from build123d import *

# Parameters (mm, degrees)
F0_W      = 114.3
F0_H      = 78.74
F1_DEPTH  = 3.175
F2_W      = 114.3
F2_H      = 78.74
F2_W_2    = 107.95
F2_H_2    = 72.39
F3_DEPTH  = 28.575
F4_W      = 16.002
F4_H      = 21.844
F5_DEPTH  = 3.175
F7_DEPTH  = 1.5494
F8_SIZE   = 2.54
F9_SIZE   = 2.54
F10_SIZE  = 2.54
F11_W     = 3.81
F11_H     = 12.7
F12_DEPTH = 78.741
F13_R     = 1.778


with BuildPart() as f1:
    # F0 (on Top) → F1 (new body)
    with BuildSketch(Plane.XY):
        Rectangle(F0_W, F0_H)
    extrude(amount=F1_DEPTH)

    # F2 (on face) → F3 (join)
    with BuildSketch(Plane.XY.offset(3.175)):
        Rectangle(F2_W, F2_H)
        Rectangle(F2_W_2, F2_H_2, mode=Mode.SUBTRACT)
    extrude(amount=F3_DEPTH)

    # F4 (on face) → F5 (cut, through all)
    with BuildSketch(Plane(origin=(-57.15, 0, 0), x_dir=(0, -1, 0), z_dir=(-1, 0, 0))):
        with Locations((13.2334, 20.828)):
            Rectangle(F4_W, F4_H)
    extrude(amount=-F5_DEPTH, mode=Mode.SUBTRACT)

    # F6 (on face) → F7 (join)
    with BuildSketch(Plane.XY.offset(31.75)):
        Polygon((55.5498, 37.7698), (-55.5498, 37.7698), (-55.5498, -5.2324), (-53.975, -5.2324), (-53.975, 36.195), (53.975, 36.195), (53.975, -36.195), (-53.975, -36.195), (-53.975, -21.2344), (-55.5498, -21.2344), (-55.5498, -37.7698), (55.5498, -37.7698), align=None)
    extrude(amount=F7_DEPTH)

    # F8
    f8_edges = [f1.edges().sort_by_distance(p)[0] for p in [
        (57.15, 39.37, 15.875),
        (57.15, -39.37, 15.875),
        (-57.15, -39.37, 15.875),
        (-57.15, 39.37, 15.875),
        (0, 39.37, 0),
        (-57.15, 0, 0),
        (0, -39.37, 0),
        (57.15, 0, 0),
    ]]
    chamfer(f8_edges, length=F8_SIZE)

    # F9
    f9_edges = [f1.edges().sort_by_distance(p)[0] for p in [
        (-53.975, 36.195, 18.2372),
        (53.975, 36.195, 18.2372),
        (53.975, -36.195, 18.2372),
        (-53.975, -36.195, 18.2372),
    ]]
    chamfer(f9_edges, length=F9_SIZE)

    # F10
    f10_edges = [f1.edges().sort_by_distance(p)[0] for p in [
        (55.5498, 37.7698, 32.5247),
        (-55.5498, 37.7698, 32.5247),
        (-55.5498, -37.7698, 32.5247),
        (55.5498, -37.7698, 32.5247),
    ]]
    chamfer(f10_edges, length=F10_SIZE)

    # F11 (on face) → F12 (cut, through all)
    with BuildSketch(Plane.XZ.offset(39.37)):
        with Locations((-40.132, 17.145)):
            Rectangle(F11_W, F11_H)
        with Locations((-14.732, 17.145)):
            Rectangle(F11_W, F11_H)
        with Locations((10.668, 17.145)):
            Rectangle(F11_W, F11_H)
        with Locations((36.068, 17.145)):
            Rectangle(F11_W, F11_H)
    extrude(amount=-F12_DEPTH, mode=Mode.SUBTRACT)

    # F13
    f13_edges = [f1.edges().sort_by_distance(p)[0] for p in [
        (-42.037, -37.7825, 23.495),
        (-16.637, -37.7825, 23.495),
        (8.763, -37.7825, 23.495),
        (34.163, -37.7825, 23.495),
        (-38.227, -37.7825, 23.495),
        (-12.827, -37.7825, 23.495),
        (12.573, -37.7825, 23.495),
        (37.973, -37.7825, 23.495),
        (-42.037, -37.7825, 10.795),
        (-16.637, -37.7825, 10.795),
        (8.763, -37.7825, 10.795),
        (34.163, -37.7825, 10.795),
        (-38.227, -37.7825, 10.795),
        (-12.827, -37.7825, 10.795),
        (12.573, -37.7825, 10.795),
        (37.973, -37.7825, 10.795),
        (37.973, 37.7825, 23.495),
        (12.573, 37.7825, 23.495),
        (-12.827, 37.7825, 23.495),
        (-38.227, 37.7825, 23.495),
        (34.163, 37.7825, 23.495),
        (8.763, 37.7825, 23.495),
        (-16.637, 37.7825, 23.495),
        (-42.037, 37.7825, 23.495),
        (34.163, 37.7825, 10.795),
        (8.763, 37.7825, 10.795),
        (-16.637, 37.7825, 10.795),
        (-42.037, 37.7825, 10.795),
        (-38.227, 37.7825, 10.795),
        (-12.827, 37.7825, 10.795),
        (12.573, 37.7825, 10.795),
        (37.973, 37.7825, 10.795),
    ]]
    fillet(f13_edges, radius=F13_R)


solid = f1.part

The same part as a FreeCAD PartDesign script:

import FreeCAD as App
import Part
import Sketcher

V = App.Vector
Q = App.Units.Quantity


def edges_at(feature, points):
    """Names of the edges that pass closest to the given points."""
    edges = feature.Shape.Edges
    near = lambda p: min(range(len(edges)), key=lambda i: edges[i].distToShape(Part.Vertex(*p))[0])
    return sorted({f"Edge{near(p) + 1}" for p in points})


def add_polygon(sketch, points):
    """Adds a closed chain of lines whose ends are joined by coincident constraints."""
    first, n = sketch.GeometryCount, len(points)
    for a, b in zip(points, points[1:] + points[:1]):
        sketch.addGeometry(Part.LineSegment(App.Vector(*a, 0), App.Vector(*b, 0)), False)
    for i in range(n):
        sketch.addConstraint(Sketcher.Constraint("Coincident", first + i, 2, first + (i + 1) % n, 1))

doc = App.newDocument("Part")
params = doc.addObject("Spreadsheet::Sheet", "Params")
for row, (alias, value) in enumerate([
    ("sketch1_width", "4.5 in"),
    ("sketch1_height", "3.1 in"),
    ("pad1_length", "0.125 in"),
    ("sketch2_width", "4.5 in"),
    ("sketch2_height", "3.1 in"),
    ("sketch2_width2", "4.25 in"),
    ("sketch2_height2", "2.85 in"),
    ("pad2_length", "1.125 in"),
    ("sketch3_width", "0.63 in"),
    ("sketch3_height", "0.86 in"),
    ("pocket1_length", "0.125 in"),
    ("sketch4_width", "4.25 in"),
    ("sketch4_height", "2.85 in"),
    ("sketch4_width2", "4.374 in"),
    ("sketch4_height2", "1.693 in"),
    ("sketch4_height3", "1.631 in"),
    ("pad3_length", "0.061 in"),
    ("chamfer_size", "0.1 in"),
    ("chamfer2_size", "0.1 in"),
    ("chamfer3_size", "0.1 in"),
    ("sketch5_height", "0.5 in"),
    ("sketch5_width", "0.15 in"),
    ("fillet_radius", "0.07 in"),
], start=1):
    params.set(f"A{row}", alias)
    params.set(f"B{row}", "=" + value)
    params.setAlias(f"B{row}", alias)

body = doc.addObject("PartDesign::Body", "Body")

sketch1 = body.newObject("Sketcher::SketchObject", "Sketch")
sketch1.AttachmentSupport = (doc.getObject("XY_Plane"), [""])
sketch1.MapMode = "FlatFace"
add_polygon(sketch1, [(-57, 39), (-57, -39), (57, -39), (57, 39)])
sketch1.addConstraint([
    Sketcher.Constraint("Vertical", 0),
    Sketcher.Constraint("Horizontal", 1),
    Sketcher.Constraint("Vertical", 2),
    Sketcher.Constraint("Horizontal", 3),
    Sketcher.Constraint("Symmetric", 0, 2, 2, 2, -1, 1),
    Sketcher.Constraint("DistanceX", 1, 1, 1, 2, Q("4.5 in")),
    Sketcher.Constraint("DistanceY", 0, 2, 0, 1, Q("3.1 in")),
])
sketch1.setExpression("Constraints[9]", "Params.sketch1_width")
sketch1.setExpression("Constraints[10]", "Params.sketch1_height")
pad1 = body.newObject("PartDesign::Pad", "Pad")
pad1.Profile = sketch1
pad1.setExpression("Length", "Params.pad1_length")

sketch2 = body.newObject("Sketcher::SketchObject", "Sketch001")
sketch2.AttachmentSupport = (doc.getObject("XY_Plane"), [""])
sketch2.MapMode = "FlatFace"
sketch2.AttachmentOffset = App.Placement(V(0, 0, 0.125 * 25.4), App.Rotation())
add_polygon(sketch2, [(-57, 39), (-57, -39), (57, -39), (57, 39)])
add_polygon(sketch2, [(54, -36), (-54, -36), (-54, 36), (54, 36)])
sketch2.addConstraint([
    Sketcher.Constraint("Vertical", 0),
    Sketcher.Constraint("Horizontal", 1),
    Sketcher.Constraint("Vertical", 2),
    Sketcher.Constraint("Horizontal", 3),
    Sketcher.Constraint("Horizontal", 4),
    Sketcher.Constraint("Vertical", 5),
    Sketcher.Constraint("Horizontal", 6),
    Sketcher.Constraint("Vertical", 7),
    Sketcher.Constraint("Symmetric", 0, 2, 2, 2, -1, 1),
    Sketcher.Constraint("Symmetric", 4, 2, 6, 2, -1, 1),
    Sketcher.Constraint("DistanceX", 1, 1, 1, 2, Q("4.5 in")),
    Sketcher.Constraint("DistanceY", 0, 2, 0, 1, Q("3.1 in")),
    Sketcher.Constraint("DistanceX", 4, 2, 4, 1, Q("4.25 in")),
    Sketcher.Constraint("DistanceY", 5, 1, 5, 2, Q("2.85 in")),
])
sketch2.setExpression("Constraints[18]", "Params.sketch2_width")
sketch2.setExpression("Constraints[19]", "Params.sketch2_height")
sketch2.setExpression("Constraints[20]", "Params.sketch2_width2")
sketch2.setExpression("Constraints[21]", "Params.sketch2_height2")
pad2 = body.newObject("PartDesign::Pad", "Pad001")
pad2.Profile = sketch2
pad2.setExpression("Length", "Params.pad2_length")

sketch3 = body.newObject("Sketcher::SketchObject", "Sketch002")
sketch3.AttachmentSupport = (doc.getObject("YZ_Plane"), [""])
sketch3.MapMode = "FlatFace"
sketch3.AttachmentOffset = App.Placement(V(0, 0, -2.25 * 25.4), App.Rotation())
add_polygon(sketch3, [(-5, 32), (-5, 10), (-21, 10), (-21, 32)])
sketch3.addConstraint([
    Sketcher.Constraint("Vertical", 0),
    Sketcher.Constraint("Horizontal", 1),
    Sketcher.Constraint("Vertical", 2),
    Sketcher.Constraint("Horizontal", 3),
    Sketcher.Constraint("DistanceX", 1, 2, 1, 1, Q("0.63 in")),
    Sketcher.Constraint("DistanceY", 0, 2, 0, 1, Q("0.86 in")),
    Sketcher.Constraint("DistanceY", -1, 1, 0, 2, Q("0.39 in")),
    Sketcher.Constraint("DistanceX", 0, 2, -1, 1, Q("0.206 in")),
])
sketch3.setExpression("Constraints[8]", "Params.sketch3_width")
sketch3.setExpression("Constraints[9]", "Params.sketch3_height")
pocket1 = body.newObject("PartDesign::Pocket", "Pocket")
pocket1.Profile = sketch3
pocket1.setExpression("Length", "Params.pocket1_length")
pocket1.Reversed = True

sketch4 = body.newObject("Sketcher::SketchObject", "Sketch003")
sketch4.AttachmentSupport = (doc.getObject("XY_Plane"), [""])
sketch4.MapMode = "FlatFace"
sketch4.AttachmentOffset = App.Placement(V(0, 0, 1.25 * 25.4), App.Rotation())
add_polygon(sketch4, [(55.5, 37.8), (-55.5, 37.8), (-55.5, -5.2), (-54, -5.2), (-54, 36.2), (54, 36.2), (54, -36.2), (-54, -36.2), (-54, -21.2), (-55.5, -21.2), (-55.5, -37.8), (55.5, -37.8)])
sketch4.addConstraint([
    Sketcher.Constraint("Horizontal", 0),
    Sketcher.Constraint("Vertical", 1),
    Sketcher.Constraint("Horizontal", 2),
    Sketcher.Constraint("Vertical", 3),
    Sketcher.Constraint("Horizontal", 4),
    Sketcher.Constraint("Vertical", 5),
    Sketcher.Constraint("Horizontal", 6),
    Sketcher.Constraint("Vertical", 7),
    Sketcher.Constraint("Horizontal", 8),
    Sketcher.Constraint("Vertical", 9),
    Sketcher.Constraint("Horizontal", 10),
    Sketcher.Constraint("Vertical", 11),
    Sketcher.Constraint("Symmetric", 3, 2, 5, 2, -1, 1),
    Sketcher.Constraint("Symmetric", 0, 2, 10, 2, -1, 1),
    Sketcher.Constraint("Vertical", 3, 2, 6, 2),
    Sketcher.Constraint("Vertical", 1, 2, 8, 2),
    Sketcher.Constraint("DistanceX", 4, 1, 4, 2, Q("4.25 in")),
    Sketcher.Constraint("DistanceY", 5, 2, 5, 1, Q("2.85 in")),
    Sketcher.Constraint("DistanceX", 0, 2, 0, 1, Q("4.374 in")),
    Sketcher.Constraint("DistanceY", 1, 2, 1, 1, Q("1.693 in")),
    Sketcher.Constraint("DistanceY", 3, 1, 3, 2, Q("1.631 in")),
    Sketcher.Constraint("DistanceY", 7, 1, 7, 2, Q("0.589 in")),
])
sketch4.setExpression("Constraints[28]", "Params.sketch4_width")
sketch4.setExpression("Constraints[29]", "Params.sketch4_height")
sketch4.setExpression("Constraints[30]", "Params.sketch4_width2")
sketch4.setExpression("Constraints[31]", "Params.sketch4_height2")
sketch4.setExpression("Constraints[32]", "Params.sketch4_height3")
pad3 = body.newObject("PartDesign::Pad", "Pad002")
pad3.Profile = sketch4
pad3.setExpression("Length", "Params.pad3_length")
doc.recompute()

chamfer = body.newObject("PartDesign::Chamfer", "Chamfer")
chamfer.Base = (pad3, edges_at(pad3, [
    (57.15, 39.37, 15.875),
    (57.15, -39.37, 15.875),
    (-57.15, -39.37, 15.875),
    (-57.15, 39.37, 15.875),
    (0, 39.37, 0),
    (-57.15, 0, 0),
    (0, -39.37, 0),
    (57.15, 0, 0),
]))
chamfer.setExpression("Size", "Params.chamfer_size")
doc.recompute()

chamfer2 = body.newObject("PartDesign::Chamfer", "Chamfer001")
chamfer2.Base = (chamfer, edges_at(chamfer, [
    (-53.975, 36.195, 18.237),
    (53.975, 36.195, 18.237),
    (53.975, -36.195, 18.237),
    (-53.975, -36.195, 18.237),
]))
chamfer2.setExpression("Size", "Params.chamfer2_size")
doc.recompute()

chamfer3 = body.newObject("PartDesign::Chamfer", "Chamfer002")
chamfer3.Base = (chamfer2, edges_at(chamfer2, [
    (55.55, 37.77, 32.525),
    (-55.55, 37.77, 32.525),
    (-55.55, -37.77, 32.525),
    (55.55, -37.77, 32.525),
]))
chamfer3.setExpression("Size", "Params.chamfer3_size")

sketch5 = body.newObject("Sketcher::SketchObject", "Sketch004")
sketch5.AttachmentSupport = (doc.getObject("XZ_Plane"), [""])
sketch5.MapMode = "FlatFace"
sketch5.AttachmentOffset = App.Placement(V(0, 0, 1.55 * 25.4), App.Rotation())
add_polygon(sketch5, [(-42, 23.5), (-42, 10.8), (-38.2, 10.8), (-38.2, 23.5)])
add_polygon(sketch5, [(-16.6, 23.5), (-16.6, 10.8), (-12.8, 10.8), (-12.8, 23.5)])
add_polygon(sketch5, [(8.8, 23.5), (8.8, 10.8), (12.6, 10.8), (12.6, 23.5)])
add_polygon(sketch5, [(34.2, 23.5), (34.2, 10.8), (38, 10.8), (38, 23.5)])
sketch5.addConstraint([
    Sketcher.Constraint("Vertical", 0),
    Sketcher.Constraint("Horizontal", 1),
    Sketcher.Constraint("Vertical", 2),
    Sketcher.Constraint("Horizontal", 3),
    Sketcher.Constraint("Vertical", 4),
    Sketcher.Constraint("Horizontal", 5),
    Sketcher.Constraint("Vertical", 6),
    Sketcher.Constraint("Horizontal", 7),
    Sketcher.Constraint("Vertical", 8),
    Sketcher.Constraint("Horizontal", 9),
    Sketcher.Constraint("Vertical", 10),
    Sketcher.Constraint("Horizontal", 11),
    Sketcher.Constraint("Vertical", 12),
    Sketcher.Constraint("Horizontal", 13),
    Sketcher.Constraint("Vertical", 14),
    Sketcher.Constraint("Horizontal", 15),
    Sketcher.Constraint("Horizontal", 1, 2, 4, 2),
    Sketcher.Constraint("Horizontal", 3, 2, 6, 2),
    Sketcher.Constraint("Horizontal", 5, 2, 8, 2),
    Sketcher.Constraint("Horizontal", 7, 2, 10, 2),
    Sketcher.Constraint("Horizontal", 9, 2, 12, 2),
    Sketcher.Constraint("Horizontal", 11, 2, 14, 2),
    Sketcher.Constraint("Equal", 3, 5),
    Sketcher.Constraint("Equal", 7, 9),
    Sketcher.Constraint("Equal", 11, 13),
    Sketcher.Constraint("DistanceY", 0, 2, 0, 1, Q("0.5 in")),
    Sketcher.Constraint("DistanceX", 0, 2, 4, 2, Q("1 in")),
    Sketcher.Constraint("DistanceX", 4, 2, 8, 2, Q("1 in")),
    Sketcher.Constraint("DistanceX", 8, 2, 12, 2, Q("1 in")),
    Sketcher.Constraint("DistanceX", 1, 1, 1, 2, Q("0.15 in")),
    Sketcher.Constraint("DistanceX", 0, 2, -1, 1, Q("1.655 in")),
    Sketcher.Constraint("DistanceY", -1, 1, 0, 2, Q("0.425 in")),
])
sketch5.setExpression("Constraints[41]", "Params.sketch5_height")
sketch5.setExpression("Constraints[45]", "Params.sketch5_width")
pocket2 = body.newObject("PartDesign::Pocket", "Pocket001")
pocket2.Profile = sketch5
pocket2.Type = "ThroughAll"
doc.recompute()

fillet = body.newObject("PartDesign::Fillet", "Fillet")
fillet.Base = (pocket2, edges_at(pocket2, [
    (-42.037, -37.782, 23.495),
    (-16.637, -37.782, 23.495),
    (8.763, -37.782, 23.495),
    (34.163, -37.782, 23.495),
    (-38.227, -37.782, 23.495),
    (-12.827, -37.782, 23.495),
    (12.573, -37.782, 23.495),
    (37.973, -37.782, 23.495),
    (-42.037, -37.782, 10.795),
    (-16.637, -37.782, 10.795),
    (8.763, -37.782, 10.795),
    (34.163, -37.782, 10.795),
    (-38.227, -37.782, 10.795),
    (-12.827, -37.782, 10.795),
    (12.573, -37.782, 10.795),
    (37.973, -37.782, 10.795),
    (37.973, 37.782, 23.495),
    (12.573, 37.782, 23.495),
    (-12.827, 37.782, 23.495),
    (-38.227, 37.782, 23.495),
    (34.163, 37.782, 23.495),
    (8.763, 37.782, 23.495),
    (-16.637, 37.782, 23.495),
    (-42.037, 37.782, 23.495),
    (34.163, 37.782, 10.795),
    (8.763, 37.782, 10.795),
    (-16.637, 37.782, 10.795),
    (-42.037, 37.782, 10.795),
    (-38.227, 37.782, 10.795),
    (-12.827, 37.782, 10.795),
    (12.573, 37.782, 10.795),
    (37.973, 37.782, 10.795),
]))
fillet.setExpression("Radius", "Params.fillet_radius")

doc.recompute()
